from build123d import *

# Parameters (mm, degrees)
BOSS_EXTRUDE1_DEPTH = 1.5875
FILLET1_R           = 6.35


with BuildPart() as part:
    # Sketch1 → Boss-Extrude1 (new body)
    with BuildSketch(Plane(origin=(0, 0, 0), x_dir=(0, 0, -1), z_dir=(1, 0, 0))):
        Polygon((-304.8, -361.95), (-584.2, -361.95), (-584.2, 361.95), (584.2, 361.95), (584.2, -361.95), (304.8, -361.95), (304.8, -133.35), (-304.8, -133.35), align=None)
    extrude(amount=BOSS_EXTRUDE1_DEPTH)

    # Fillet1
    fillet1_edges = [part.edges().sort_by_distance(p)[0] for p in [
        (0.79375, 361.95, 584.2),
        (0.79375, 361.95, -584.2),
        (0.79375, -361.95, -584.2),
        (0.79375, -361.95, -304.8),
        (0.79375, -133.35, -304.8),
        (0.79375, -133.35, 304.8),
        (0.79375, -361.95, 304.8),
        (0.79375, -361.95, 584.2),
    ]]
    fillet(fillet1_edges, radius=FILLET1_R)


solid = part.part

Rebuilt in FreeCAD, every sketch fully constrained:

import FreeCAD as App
import Part
import Sketcher
Q = App.Units.Quantity


def edges_at(feature, points):
    """Names of the edges that pass closest to the given points."""
    edges = feature.Shape.Edges
    near = lambda p: min(range(len(edges)), key=lambda i: edges[i].distToShape(Part.Vertex(*p))[0])
    return sorted({f"Edge{near(p) + 1}" for p in points})

doc = App.newDocument("Part")
body = doc.addObject("PartDesign::Body", "Body")

sketch1 = doc.addObject("Sketcher::SketchObject", "Sketch")
body.addObject(sketch1)
sketch1.AttachmentSupport = (doc.YZ_Plane, [""])
sketch1.MapMode = "FlatFace"
sketch1.addGeometry([
    Part.LineSegment(App.Vector(-361.95, 584.2, 0), App.Vector(-361.95, 304.8, 0)),
    Part.LineSegment(App.Vector(-361.95, 304.8, 0), App.Vector(-133.35, 304.8, 0)),
    Part.LineSegment(App.Vector(-133.35, 304.8, 0), App.Vector(-133.35, -304.8, 0)),
    Part.LineSegment(App.Vector(-133.35, -304.8, 0), App.Vector(-361.95, -304.8, 0)),
    Part.LineSegment(App.Vector(-361.95, -304.8, 0), App.Vector(-361.95, -584.2, 0)),
    Part.LineSegment(App.Vector(-361.95, -584.2, 0), App.Vector(361.95, -584.2, 0)),
    Part.LineSegment(App.Vector(361.95, -584.2, 0), App.Vector(361.95, 584.2, 0)),
    Part.LineSegment(App.Vector(361.95, 584.2, 0), App.Vector(-361.95, 584.2, 0)),
], False)
sketch1.addConstraint([
    Sketcher.Constraint("Coincident", 0, 2, 1, 1),
    Sketcher.Constraint("Coincident", 1, 2, 2, 1),
    Sketcher.Constraint("Coincident", 2, 2, 3, 1),
    Sketcher.Constraint("Coincident", 3, 2, 4, 1),
    Sketcher.Constraint("Coincident", 4, 2, 5, 1),
    Sketcher.Constraint("Coincident", 5, 2, 6, 1),
    Sketcher.Constraint("Coincident", 6, 2, 7, 1),
    Sketcher.Constraint("Coincident", 7, 2, 0, 1),
    Sketcher.Constraint("Vertical", 0),
    Sketcher.Constraint("Horizontal", 1),
    Sketcher.Constraint("Vertical", 2),
    Sketcher.Constraint("Horizontal", 3),
    Sketcher.Constraint("Vertical", 4),
    Sketcher.Constraint("Horizontal", 5),
    Sketcher.Constraint("Vertical", 6),
    Sketcher.Constraint("Horizontal", 7),
    Sketcher.Constraint("Symmetric", 4, 2, 6, 2, -1, 1),
    Sketcher.Constraint("Symmetric", 0, 2, 3, 2, -1),
    Sketcher.Constraint("DistanceX", 1, 1, 1, 2, Q("9 in")),
    Sketcher.Constraint("DistanceY", 0, 2, 0, 1, Q("11 in")),
    Sketcher.Constraint("DistanceY", 2, 2, 2, 1, Q("24 in")),
    Sketcher.Constraint("DistanceX", 5, 1, 5, 2, Q("28.5 in")),
])
pad1 = doc.addObject("PartDesign::Pad", "Pad")
body.addObject(pad1)
pad1.Profile = sketch1
pad1.Length = Q("0.0625 in")
doc.recompute()

fillet = doc.addObject("PartDesign::Fillet", "Fillet")
body.addObject(fillet)
fillet.Base = (pad1, edges_at(pad1, [
    (0.794, 361.95, 584.2),
    (0.794, 361.95, -584.2),
    (0.794, -361.95, -584.2),
    (0.794, -361.95, -304.8),
    (0.794, -133.35, -304.8),
    (0.794, -133.35, 304.8),
    (0.794, -361.95, 304.8),
    (0.794, -361.95, 584.2),
]))
fillet.Radius = Q("0.25 in")

doc.recompute()
